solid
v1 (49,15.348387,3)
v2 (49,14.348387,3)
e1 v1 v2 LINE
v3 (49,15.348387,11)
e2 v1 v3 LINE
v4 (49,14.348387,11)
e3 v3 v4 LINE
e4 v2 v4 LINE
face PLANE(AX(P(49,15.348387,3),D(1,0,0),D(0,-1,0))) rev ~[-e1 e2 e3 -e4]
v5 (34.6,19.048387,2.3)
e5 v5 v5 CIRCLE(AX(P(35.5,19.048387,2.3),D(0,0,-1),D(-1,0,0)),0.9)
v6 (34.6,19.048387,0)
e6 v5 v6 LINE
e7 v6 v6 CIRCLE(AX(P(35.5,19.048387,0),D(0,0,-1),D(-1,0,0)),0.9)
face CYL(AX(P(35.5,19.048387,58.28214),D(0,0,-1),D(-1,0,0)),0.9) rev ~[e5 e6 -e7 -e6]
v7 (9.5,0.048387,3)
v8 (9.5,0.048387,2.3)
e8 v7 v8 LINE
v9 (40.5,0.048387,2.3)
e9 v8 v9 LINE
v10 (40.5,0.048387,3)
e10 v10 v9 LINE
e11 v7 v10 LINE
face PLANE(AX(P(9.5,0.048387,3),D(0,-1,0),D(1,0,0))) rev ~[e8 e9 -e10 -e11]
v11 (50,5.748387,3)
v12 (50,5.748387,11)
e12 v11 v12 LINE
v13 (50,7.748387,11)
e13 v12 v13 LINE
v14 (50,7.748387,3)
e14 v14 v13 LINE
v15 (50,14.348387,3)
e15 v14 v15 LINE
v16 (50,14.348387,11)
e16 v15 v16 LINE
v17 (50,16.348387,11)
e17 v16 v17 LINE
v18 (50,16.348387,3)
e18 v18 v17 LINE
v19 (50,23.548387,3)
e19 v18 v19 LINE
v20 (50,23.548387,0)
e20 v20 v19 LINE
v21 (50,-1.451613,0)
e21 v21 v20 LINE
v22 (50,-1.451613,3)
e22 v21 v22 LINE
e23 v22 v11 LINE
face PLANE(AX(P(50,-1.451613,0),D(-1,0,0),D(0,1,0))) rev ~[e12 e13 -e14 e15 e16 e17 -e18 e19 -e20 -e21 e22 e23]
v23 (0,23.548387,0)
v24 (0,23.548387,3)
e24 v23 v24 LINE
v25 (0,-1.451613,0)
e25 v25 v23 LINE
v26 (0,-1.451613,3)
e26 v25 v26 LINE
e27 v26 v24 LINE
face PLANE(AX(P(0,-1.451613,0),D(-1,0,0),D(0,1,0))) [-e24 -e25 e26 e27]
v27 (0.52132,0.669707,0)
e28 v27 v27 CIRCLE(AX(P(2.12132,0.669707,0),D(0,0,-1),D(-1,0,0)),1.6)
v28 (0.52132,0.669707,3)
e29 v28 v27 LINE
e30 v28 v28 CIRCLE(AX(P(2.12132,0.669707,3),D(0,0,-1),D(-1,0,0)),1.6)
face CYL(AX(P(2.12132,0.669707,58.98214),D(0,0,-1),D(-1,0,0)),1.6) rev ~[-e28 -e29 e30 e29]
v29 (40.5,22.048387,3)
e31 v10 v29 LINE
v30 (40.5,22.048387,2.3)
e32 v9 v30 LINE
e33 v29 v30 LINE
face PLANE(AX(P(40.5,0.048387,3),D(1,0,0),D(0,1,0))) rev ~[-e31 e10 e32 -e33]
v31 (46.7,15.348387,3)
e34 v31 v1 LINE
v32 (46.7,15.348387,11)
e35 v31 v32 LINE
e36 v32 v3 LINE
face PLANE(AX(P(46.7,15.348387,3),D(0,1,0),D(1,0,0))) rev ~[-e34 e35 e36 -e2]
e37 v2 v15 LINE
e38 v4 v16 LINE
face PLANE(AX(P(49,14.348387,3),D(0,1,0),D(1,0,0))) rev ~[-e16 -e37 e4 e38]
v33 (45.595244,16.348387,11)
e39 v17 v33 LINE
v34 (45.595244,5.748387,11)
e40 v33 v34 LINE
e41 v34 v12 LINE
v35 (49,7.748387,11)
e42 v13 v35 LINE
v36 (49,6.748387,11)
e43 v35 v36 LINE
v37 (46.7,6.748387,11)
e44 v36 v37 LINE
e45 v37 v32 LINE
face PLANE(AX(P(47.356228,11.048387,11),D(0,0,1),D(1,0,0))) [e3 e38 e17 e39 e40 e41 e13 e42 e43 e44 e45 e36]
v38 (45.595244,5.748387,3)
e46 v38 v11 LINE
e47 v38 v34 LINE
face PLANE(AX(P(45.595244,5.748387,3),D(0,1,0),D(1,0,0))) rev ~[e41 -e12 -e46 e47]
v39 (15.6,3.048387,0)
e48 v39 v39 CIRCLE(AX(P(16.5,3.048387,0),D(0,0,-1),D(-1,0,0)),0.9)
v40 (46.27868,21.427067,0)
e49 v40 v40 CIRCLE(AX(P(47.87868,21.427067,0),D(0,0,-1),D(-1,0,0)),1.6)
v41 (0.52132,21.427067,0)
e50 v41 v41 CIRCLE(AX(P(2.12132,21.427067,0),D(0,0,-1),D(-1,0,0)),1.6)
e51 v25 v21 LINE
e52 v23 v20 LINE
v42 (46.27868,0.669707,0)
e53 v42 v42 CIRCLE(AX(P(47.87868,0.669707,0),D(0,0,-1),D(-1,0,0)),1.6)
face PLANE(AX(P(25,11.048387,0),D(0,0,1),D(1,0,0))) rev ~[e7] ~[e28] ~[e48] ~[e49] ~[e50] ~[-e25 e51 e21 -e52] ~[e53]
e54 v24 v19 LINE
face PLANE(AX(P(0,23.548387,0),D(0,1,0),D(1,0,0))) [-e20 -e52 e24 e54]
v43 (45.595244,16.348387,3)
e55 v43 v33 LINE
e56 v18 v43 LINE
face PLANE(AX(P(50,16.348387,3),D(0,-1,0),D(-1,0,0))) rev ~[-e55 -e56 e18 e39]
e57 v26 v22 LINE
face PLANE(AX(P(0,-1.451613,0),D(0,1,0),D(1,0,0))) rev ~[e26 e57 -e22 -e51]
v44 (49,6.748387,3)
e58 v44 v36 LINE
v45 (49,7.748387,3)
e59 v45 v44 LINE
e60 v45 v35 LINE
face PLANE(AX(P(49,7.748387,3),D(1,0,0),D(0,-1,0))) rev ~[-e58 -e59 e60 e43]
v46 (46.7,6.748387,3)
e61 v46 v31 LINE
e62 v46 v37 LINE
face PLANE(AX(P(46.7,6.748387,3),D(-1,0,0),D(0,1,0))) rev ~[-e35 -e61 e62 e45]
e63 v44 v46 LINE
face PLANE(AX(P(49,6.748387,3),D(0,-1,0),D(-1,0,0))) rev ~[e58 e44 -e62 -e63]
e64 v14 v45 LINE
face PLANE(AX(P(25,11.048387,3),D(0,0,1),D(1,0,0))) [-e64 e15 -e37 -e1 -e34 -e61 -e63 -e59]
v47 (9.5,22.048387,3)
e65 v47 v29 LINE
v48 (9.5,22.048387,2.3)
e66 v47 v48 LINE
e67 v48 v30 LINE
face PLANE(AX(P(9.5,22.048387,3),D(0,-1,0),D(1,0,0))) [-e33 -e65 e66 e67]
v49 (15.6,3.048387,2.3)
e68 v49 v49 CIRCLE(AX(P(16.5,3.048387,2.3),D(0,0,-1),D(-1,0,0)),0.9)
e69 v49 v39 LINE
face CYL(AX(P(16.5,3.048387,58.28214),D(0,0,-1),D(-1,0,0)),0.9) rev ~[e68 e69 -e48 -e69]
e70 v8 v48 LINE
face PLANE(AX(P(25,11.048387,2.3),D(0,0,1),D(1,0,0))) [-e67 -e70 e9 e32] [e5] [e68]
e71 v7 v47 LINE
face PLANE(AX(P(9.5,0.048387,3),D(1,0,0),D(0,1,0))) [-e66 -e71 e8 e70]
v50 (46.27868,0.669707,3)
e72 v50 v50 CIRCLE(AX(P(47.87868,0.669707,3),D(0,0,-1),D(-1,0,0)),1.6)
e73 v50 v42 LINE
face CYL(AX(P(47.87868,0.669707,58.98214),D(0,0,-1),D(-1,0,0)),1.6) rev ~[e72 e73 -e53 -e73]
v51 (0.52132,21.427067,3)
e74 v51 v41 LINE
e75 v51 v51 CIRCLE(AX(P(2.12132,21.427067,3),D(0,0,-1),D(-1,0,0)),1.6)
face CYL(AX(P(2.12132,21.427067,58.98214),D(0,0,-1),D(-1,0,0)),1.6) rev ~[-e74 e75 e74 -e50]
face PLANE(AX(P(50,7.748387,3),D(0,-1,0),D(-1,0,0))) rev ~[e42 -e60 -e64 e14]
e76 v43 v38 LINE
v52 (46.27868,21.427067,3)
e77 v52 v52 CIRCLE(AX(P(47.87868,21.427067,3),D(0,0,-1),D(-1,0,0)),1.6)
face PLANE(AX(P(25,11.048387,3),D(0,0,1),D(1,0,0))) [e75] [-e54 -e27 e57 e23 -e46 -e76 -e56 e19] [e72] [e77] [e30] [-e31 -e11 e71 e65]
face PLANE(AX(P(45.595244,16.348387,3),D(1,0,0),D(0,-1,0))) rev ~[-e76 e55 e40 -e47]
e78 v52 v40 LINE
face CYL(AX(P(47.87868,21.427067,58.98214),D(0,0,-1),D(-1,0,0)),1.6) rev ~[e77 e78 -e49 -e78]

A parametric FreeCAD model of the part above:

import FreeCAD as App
import Part
import Sketcher

V = App.Vector
Q = App.Units.Quantity

doc = App.newDocument("Part")
params = doc.addObject("Spreadsheet::Sheet", "Params")
for row, (alias, value) in enumerate([
    ("sketch1_width", "50 mm"),
    ("sketch1_height", "25 mm"),
    ("pad1_length", "3 mm"),
    ("sketch2_diameter", "3.2 mm"),
    ("hole_diameter", "3.2 mm"),
    ("sketch3_width", "31 mm"),
    ("sketch3_height", "22 mm"),
    ("pocket1_length", "0.7 mm"),
    ("sketch4_diameter", "1.8 mm"),
    ("hole2_diameter", "1.8 mm"),
    ("sketch5_width", "1 mm"),
    ("sketch5_height", "2 mm"),
    ("sketch5_width2", "2.3 mm"),
    ("sketch5_height2", "10.6 mm"),
    ("pad2_length", "8 mm"),
], start=1):
    params.set(f"A{row}", alias)
    params.set(f"B{row}", "=" + value)
    params.setAlias(f"B{row}", alias)

body = doc.addObject("PartDesign::Body", "Body")

# Sketch on XY plane
sketch1 = body.newObject("Sketcher::SketchObject", "Sketch")
sketch1.AttachmentSupport = (doc.getObject("XY_Plane"), [""])
sketch1.MapMode = "FlatFace"
sketch1.addGeometry([
    Part.LineSegment(V(0, 24, 0), V(0, -1, 0)),
    Part.LineSegment(V(0, -1, 0), V(50, -1, 0)),
    Part.LineSegment(V(50, -1, 0), V(50, 24, 0)),
    Part.LineSegment(V(50, 24, 0), V(0, 24, 0)),
], False)
sketch1.addConstraint([
    Sketcher.Constraint("Coincident", 0, 2, 1, 1),
    Sketcher.Constraint("Coincident", 1, 2, 2, 1),
    Sketcher.Constraint("Coincident", 2, 2, 3, 1),
    Sketcher.Constraint("Coincident", 3, 2, 0, 1),
    Sketcher.Constraint("Vertical", 0),
    Sketcher.Constraint("Horizontal", 1),
    Sketcher.Constraint("Vertical", 2),
    Sketcher.Constraint("Horizontal", 3),
    Sketcher.Constraint("PointOnObject", 0, 2, -2),
    Sketcher.Constraint("DistanceX", 1, 1, 1, 2, Q("50 mm")),
    Sketcher.Constraint("DistanceY", 0, 2, 0, 1, Q("25 mm")),
    Sketcher.Constraint("DistanceY", 0, 2, -1, 1, Q("1.451613 mm")),
])
sketch1.setExpression("Constraints[9]", "Params.sketch1_width")
sketch1.setExpression("Constraints[10]", "Params.sketch1_height")
pad1 = body.newObject("PartDesign::Pad", "Pad")
pad1.Profile = sketch1
pad1.setExpression("Length", "Params.pad1_length")

# Sketch on XY plane
sketch2 = body.newObject("Sketcher::SketchObject", "Sketch001")
sketch2.AttachmentSupport = (doc.getObject("XY_Plane"), [""])
sketch2.MapMode = "FlatFace"
sketch2.AttachmentOffset = App.Placement(V(0, 0, 3), App.Rotation())
sketch2.addGeometry([
    Part.Circle(V(2.1, 21.4, 0), V(0, 0, 1), 1.6),
    Part.Circle(V(47.9, 21.4, 0), V(0, 0, 1), 1.6),
    Part.Circle(V(47.9, 0.7, 0), V(0, 0, 1), 1.6),
    Part.Circle(V(2.1, 0.7, 0), V(0, 0, 1), 1.6),
], False)
sketch2.addConstraint([
    Sketcher.Constraint("Equal", 0, 1),
    Sketcher.Constraint("Equal", 1, 2),
    Sketcher.Constraint("Equal", 2, 3),
    Sketcher.Constraint("Horizontal", 0, 3, 1, 3),
    Sketcher.Constraint("Horizontal", 2, 3, 3, 3),
    Sketcher.Constraint("Vertical", 1, 3, 2, 3),
    Sketcher.Constraint("Vertical", 0, 3, 3, 3),
    Sketcher.Constraint("Diameter", 0, Q("3.2 mm")),
    Sketcher.Constraint("DistanceX", -1, 1, 0, 3, Q("2.12132 mm")),
    Sketcher.Constraint("DistanceX", -1, 1, 1, 3, Q("47.87868 mm")),
    Sketcher.Constraint("DistanceY", 2, 3, 1, 3, Q("20.75736 mm")),
    Sketcher.Constraint("DistanceY", -1, 1, 0, 3, Q("21.427067 mm")),
])
sketch2.setExpression("Constraints[7]", "Params.sketch2_diameter")
doc.recompute()
hole = body.newObject("PartDesign::Hole", "Hole")
hole.Profile = sketch2
hole.ThreadType = "None"
hole.setExpression("Diameter", "Params.hole_diameter")
hole.DepthType = "ThroughAll"

# Sketch on XY plane
sketch3 = body.newObject("Sketcher::SketchObject", "Sketch002")
sketch3.AttachmentSupport = (doc.getObject("XY_Plane"), [""])
sketch3.MapMode = "FlatFace"
sketch3.AttachmentOffset = App.Placement(V(0, 0, 3), App.Rotation())
sketch3.addGeometry([
    Part.LineSegment(V(10, 22, 0), V(10, 0, 0)),
    Part.LineSegment(V(10, 0, 0), V(40, 0, 0)),
    Part.LineSegment(V(40, 0, 0), V(40, 22, 0)),
    Part.LineSegment(V(40, 22, 0), V(10, 22, 0)),
], False)
sketch3.addConstraint([
    Sketcher.Constraint("Coincident", 0, 2, 1, 1),
    Sketcher.Constraint("Coincident", 1, 2, 2, 1),
    Sketcher.Constraint("Coincident", 2, 2, 3, 1),
    Sketcher.Constraint("Coincident", 3, 2, 0, 1),
    Sketcher.Constraint("Vertical", 0),
    Sketcher.Constraint("Horizontal", 1),
    Sketcher.Constraint("Vertical", 2),
    Sketcher.Constraint("Horizontal", 3),
    Sketcher.Constraint("DistanceX", 1, 1, 1, 2, Q("31 mm")),
    Sketcher.Constraint("DistanceY", 0, 2, 0, 1, Q("22 mm")),
    Sketcher.Constraint("DistanceX", -1, 1, 0, 2, Q("9.5 mm")),
    Sketcher.Constraint("DistanceY", -1, 1, 0, 2, Q("0.048387 mm")),
])
sketch3.setExpression("Constraints[8]", "Params.sketch3_width")
sketch3.setExpression("Constraints[9]", "Params.sketch3_height")
pocket1 = body.newObject("PartDesign::Pocket", "Pocket")
pocket1.Profile = sketch3
pocket1.setExpression("Length", "Params.pocket1_length")

# Sketch on XY plane
sketch4 = body.newObject("Sketcher::SketchObject", "Sketch003")
sketch4.AttachmentSupport = (doc.getObject("XY_Plane"), [""])
sketch4.MapMode = "FlatFace"
sketch4.AttachmentOffset = App.Placement(V(0, 0, 2.3), App.Rotation())
sketch4.addGeometry([
    Part.Circle(V(16.5, 3, 0), V(0, 0, 1), 0.9),
    Part.Circle(V(35.5, 19, 0), V(0, 0, 1), 0.9),
], False)
sketch4.addConstraint([
    Sketcher.Constraint("Equal", 0, 1),
    Sketcher.Constraint("Diameter", 0, Q("1.8 mm")),
    Sketcher.Constraint("DistanceX", 0, 3, 1, 3, Q("19 mm")),
    Sketcher.Constraint("DistanceY", 0, 3, 1, 3, Q("16 mm")),
    Sketcher.Constraint("DistanceX", -1, 1, 0, 3, Q("16.5 mm")),
    Sketcher.Constraint("DistanceY", -1, 1, 0, 3, Q("3.048387 mm")),
])
sketch4.setExpression("Constraints[1]", "Params.sketch4_diameter")
doc.recompute()
hole2 = body.newObject("PartDesign::Hole", "Hole001")
hole2.Profile = sketch4
hole2.ThreadType = "None"
hole2.setExpression("Diameter", "Params.hole2_diameter")
hole2.DepthType = "ThroughAll"

# Sketch on XY plane
sketch5 = body.newObject("Sketcher::SketchObject", "Sketch004")
sketch5.AttachmentSupport = (doc.getObject("XY_Plane"), [""])
sketch5.MapMode = "FlatFace"
sketch5.AttachmentOffset = App.Placement(V(0, 0, 3), App.Rotation())
sketch5.addGeometry([
    Part.LineSegment(V(49, 15.3, 0), V(49, 14.3, 0)),  # 0
    Part.LineSegment(V(49, 14.3, 0), V(50, 14.3, 0)),  # 1
    Part.LineSegment(V(50, 14.3, 0), V(50, 16.3, 0)),  # 2
    Part.LineSegment(V(50, 16.3, 0), V(45.6, 16.3, 0)),  # 3
    Part.LineSegment(V(45.6, 16.3, 0), V(45.6, 5.7, 0)),  # 4
    Part.LineSegment(V(45.6, 5.7, 0), V(50, 5.7, 0)),  # 5
    Part.LineSegment(V(50, 5.7, 0), V(50, 7.7, 0)),  # 6
    Part.LineSegment(V(50, 7.7, 0), V(49, 7.7, 0)),  # 7
    Part.LineSegment(V(49, 7.7, 0), V(49, 6.7, 0)),  # 8
    Part.LineSegment(V(49, 6.7, 0), V(46.7, 6.7, 0)),  # 9
    Part.LineSegment(V(46.7, 6.7, 0), V(46.7, 15.3, 0)),  # 10
    Part.LineSegment(V(46.7, 15.3, 0), V(49, 15.3, 0)),  # 11
], False)
sketch5.addConstraint([
    Sketcher.Constraint("Coincident", 0, 2, 1, 1),
    Sketcher.Constraint("Coincident", 1, 2, 2, 1),
    Sketcher.Constraint("Coincident", 2, 2, 3, 1),
    Sketcher.Constraint("Coincident", 3, 2, 4, 1),
    Sketcher.Constraint("Coincident", 4, 2, 5, 1),
    Sketcher.Constraint("Coincident", 5, 2, 6, 1),
    Sketcher.Constraint("Coincident", 6, 2, 7, 1),
    Sketcher.Constraint("Coincident", 7, 2, 8, 1),
    Sketcher.Constraint("Coincident", 8, 2, 9, 1),
    Sketcher.Constraint("Coincident", 9, 2, 10, 1),
    Sketcher.Constraint("Coincident", 10, 2, 11, 1),
    Sketcher.Constraint("Coincident", 11, 2, 0, 1),
    Sketcher.Constraint("Vertical", 0),
    Sketcher.Constraint("Horizontal", 1),
    Sketcher.Constraint("Vertical", 2),
    Sketcher.Constraint("Horizontal", 3),
    Sketcher.Constraint("Vertical", 4),
    Sketcher.Constraint("Horizontal", 5),
    Sketcher.Constraint("Vertical", 6),
    Sketcher.Constraint("Horizontal", 7),
    Sketcher.Constraint("Vertical", 8),
    Sketcher.Constraint("Horizontal", 9),
    Sketcher.Constraint("Vertical", 10),
    Sketcher.Constraint("Horizontal", 11),
    Sketcher.Constraint("Vertical", 2, 2, 5, 2),
    Sketcher.Constraint("Vertical", 0, 2, 7, 2),
    Sketcher.Constraint("Equal", 7, 0),
    Sketcher.Constraint("Equal", 2, 6),
    Sketcher.Constraint("Equal", 0, 8),
    Sketcher.Constraint("DistanceX", 1, 1, 1, 2, Q("1 mm")),
    Sketcher.Constraint("DistanceY", 2, 1, 2, 2, Q("2 mm")),
    Sketcher.Constraint("DistanceX", 9, 2, 9, 1, Q("2.3 mm")),
    Sketcher.Constraint("DistanceY", 4, 2, 4, 1, Q("10.6 mm")),
    Sketcher.Constraint("DistanceX", -1, 1, 0, 2, Q("49 mm")),
    Sketcher.Constraint("DistanceX", 3, 2, 3, 1, Q("4.404756 mm")),
    Sketcher.Constraint("DistanceY", -1, 1, 0, 2, Q("14.348387 mm")),
])
sketch5.setExpression("Constraints[29]", "Params.sketch5_width")
sketch5.setExpression("Constraints[30]", "Params.sketch5_height")
sketch5.setExpression("Constraints[31]", "Params.sketch5_width2")
sketch5.setExpression("Constraints[32]", "Params.sketch5_height2")
pad2 = body.newObject("PartDesign::Pad", "Pad001")
pad2.Profile = sketch5
pad2.setExpression("Length", "Params.pad2_length")

doc.recompute()
